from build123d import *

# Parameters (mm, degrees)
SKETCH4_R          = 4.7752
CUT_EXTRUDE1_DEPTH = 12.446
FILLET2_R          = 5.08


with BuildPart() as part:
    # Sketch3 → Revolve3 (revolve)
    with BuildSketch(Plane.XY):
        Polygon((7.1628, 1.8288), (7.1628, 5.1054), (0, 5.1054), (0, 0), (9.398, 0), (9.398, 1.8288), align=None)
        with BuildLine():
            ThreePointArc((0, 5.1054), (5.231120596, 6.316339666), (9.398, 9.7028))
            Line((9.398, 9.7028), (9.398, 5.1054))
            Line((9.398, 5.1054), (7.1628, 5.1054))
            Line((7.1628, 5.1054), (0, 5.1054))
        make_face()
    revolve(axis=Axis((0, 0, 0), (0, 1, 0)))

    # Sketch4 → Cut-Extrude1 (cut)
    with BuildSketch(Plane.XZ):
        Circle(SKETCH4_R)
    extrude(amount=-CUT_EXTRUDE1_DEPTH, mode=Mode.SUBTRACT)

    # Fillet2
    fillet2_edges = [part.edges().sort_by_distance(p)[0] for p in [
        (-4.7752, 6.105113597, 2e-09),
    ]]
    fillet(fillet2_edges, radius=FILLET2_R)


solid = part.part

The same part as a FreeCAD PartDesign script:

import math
import FreeCAD as App
import Part
import Sketcher

V = App.Vector
Q = App.Units.Quantity


def edges_at(feature, points):
    """Names of the edges that pass closest to the given points."""
    edges = feature.Shape.Edges
    near = lambda p: min(range(len(edges)), key=lambda i: edges[i].distToShape(Part.Vertex(*p))[0])
    return sorted({f"Edge{near(p) + 1}" for p in points})

doc = App.newDocument("Part")
body = doc.addObject("PartDesign::Body", "Body")

sketch1 = body.newObject("Sketcher::SketchObject", "Sketch")
sketch1.AttachmentSupport = (doc.getObject("XY_Plane"), [""])
sketch1.MapMode = "FlatFace"
sketch1.addGeometry([
    Part.LineSegment(V(7.2, 1.8, 0), V(7.2, 5.1, 0)),
    Part.LineSegment(V(7.2, 5.1, 0), V(9.4, 5.1, 0)),
    Part.LineSegment(V(9.4, 5.1, 0), V(9.4, 9.7, 0)),
    Part.ArcOfCircle(Part.Circle(V(0, 17, 0), V(0, 0, 1), 11.9), math.radians(-90), math.radians(-38)),
    Part.LineSegment(V(0, 5.1, 0), V(0, 0, 0)),
    Part.LineSegment(V(0, 0, 0), V(9.4, 0, 0)),
    Part.LineSegment(V(9.4, 0, 0), V(9.4, 1.8, 0)),
    Part.LineSegment(V(9.4, 1.8, 0), V(7.2, 1.8, 0)),
], False)
sketch1.addConstraint([
    Sketcher.Constraint("Coincident", 0, 2, 1, 1),
    Sketcher.Constraint("Coincident", 1, 2, 2, 1),
    Sketcher.Constraint("Coincident", 2, 2, 3, 2),
    Sketcher.Constraint("Coincident", 3, 1, 4, 1),
    Sketcher.Constraint("Coincident", 4, 2, 5, 1),
    Sketcher.Constraint("Coincident", 5, 2, 6, 1),
    Sketcher.Constraint("Coincident", 6, 2, 7, 1),
    Sketcher.Constraint("Coincident", 7, 2, 0, 1),
    Sketcher.Constraint("Vertical", 0),
    Sketcher.Constraint("Horizontal", 1),
    Sketcher.Constraint("Vertical", 2),
    Sketcher.Constraint("Vertical", 4),
    Sketcher.Constraint("Horizontal", 5),
    Sketcher.Constraint("Vertical", 6),
    Sketcher.Constraint("Horizontal", 7),
    Sketcher.Constraint("Coincident", 4, 2, -1, 1),
    Sketcher.Constraint("PointOnObject", 3, 3, -2),
    Sketcher.Constraint("Horizontal", 1, 2, 3, 1),
    Sketcher.Constraint("Vertical", 2, 2, 5, 2),
    Sketcher.Constraint("DistanceX", 5, 1, 5, 2, Q("0.37 in")),
    Sketcher.Constraint("DistanceX", 1, 1, 1, 2, Q("0.088 in")),
    Sketcher.Constraint("DistanceY", 0, 1, 0, 2, Q("0.129 in")),
    Sketcher.Constraint("DistanceY", 2, 1, 2, 2, Q("0.181 in")),
    Sketcher.Constraint("DistanceY", 4, 2, 4, 1, Q("0.201 in")),
])
revolution = body.newObject("PartDesign::Revolution", "Revolution")
revolution.Profile = sketch1
revolution.ReferenceAxis = (sketch1, ["V_Axis"])
revolution.Angle = 360

sketch2 = body.newObject("Sketcher::SketchObject", "Sketch001")
sketch2.AttachmentSupport = (doc.getObject("XZ_Plane"), [""])
sketch2.MapMode = "FlatFace"
sketch2.addGeometry(Part.Circle(V(0, 0, 0), V(0, 0, 1), 4.8), False)
sketch2.addConstraint([
    Sketcher.Constraint("Coincident", 0, 3, -1, 1),
    Sketcher.Constraint("Diameter", 0, Q("0.376 in")),
])
pocket1 = body.newObject("PartDesign::Pocket", "Pocket")
pocket1.Profile = sketch2
pocket1.Length = Q("0.49 in")
doc.recompute()

fillet = body.newObject("PartDesign::Fillet", "Fillet")
fillet.Base = (pocket1, edges_at(pocket1, [(-4.775, 6.105, 0)]))
fillet.Radius = Q("0.2 in")

doc.recompute()
